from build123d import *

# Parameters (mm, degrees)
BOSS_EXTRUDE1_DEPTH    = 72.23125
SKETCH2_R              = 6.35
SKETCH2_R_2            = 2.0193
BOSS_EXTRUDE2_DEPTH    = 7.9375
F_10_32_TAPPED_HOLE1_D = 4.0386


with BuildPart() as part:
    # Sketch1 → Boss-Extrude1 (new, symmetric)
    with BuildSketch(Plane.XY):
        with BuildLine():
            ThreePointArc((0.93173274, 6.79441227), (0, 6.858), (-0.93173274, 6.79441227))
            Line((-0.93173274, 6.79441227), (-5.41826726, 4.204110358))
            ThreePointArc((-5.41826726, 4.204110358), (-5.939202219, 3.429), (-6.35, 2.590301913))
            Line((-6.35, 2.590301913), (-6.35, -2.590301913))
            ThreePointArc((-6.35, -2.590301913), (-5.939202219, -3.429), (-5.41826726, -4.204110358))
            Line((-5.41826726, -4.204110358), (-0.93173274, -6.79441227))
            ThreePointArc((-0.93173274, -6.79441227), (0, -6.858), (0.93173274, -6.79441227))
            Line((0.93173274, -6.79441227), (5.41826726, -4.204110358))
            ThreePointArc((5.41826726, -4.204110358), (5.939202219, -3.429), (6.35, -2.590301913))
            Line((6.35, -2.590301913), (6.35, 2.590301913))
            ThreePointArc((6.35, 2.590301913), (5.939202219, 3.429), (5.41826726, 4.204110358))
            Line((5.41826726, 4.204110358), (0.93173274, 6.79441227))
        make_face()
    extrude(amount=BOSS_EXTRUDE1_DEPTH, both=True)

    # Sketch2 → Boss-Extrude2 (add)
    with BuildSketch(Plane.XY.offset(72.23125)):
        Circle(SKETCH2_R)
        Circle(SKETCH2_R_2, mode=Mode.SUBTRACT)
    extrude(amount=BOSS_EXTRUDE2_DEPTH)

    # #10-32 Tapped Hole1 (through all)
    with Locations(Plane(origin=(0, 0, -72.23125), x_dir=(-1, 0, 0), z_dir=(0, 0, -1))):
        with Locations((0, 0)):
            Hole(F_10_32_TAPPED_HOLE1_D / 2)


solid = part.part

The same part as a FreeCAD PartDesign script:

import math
import FreeCAD as App
import Part
import Sketcher
Q = App.Units.Quantity

doc = App.newDocument("Part")
body = doc.addObject("PartDesign::Body", "Body")

sketch1 = doc.addObject("Sketcher::SketchObject", "Sketch")
body.addObject(sketch1)
sketch1.AttachmentSupport = (doc.XY_Plane, [""])
sketch1.MapMode = "FlatFace"
sketch1.addGeometry([
    Part.ArcOfCircle(Part.Circle(App.Vector(0, 0, 0), App.Vector(0, 0, 1), 6.9), math.radians(82.19), math.radians(97.81)),
    Part.LineSegment(App.Vector(-0.9, 6.8, 0), App.Vector(-5.4, 4.2, 0)),
    Part.ArcOfCircle(Part.Circle(App.Vector(0, 0, 0), App.Vector(0, 0, 1), 6.9), math.radians(142.19), math.radians(157.81)),
    Part.LineSegment(App.Vector(-6.3, 2.6, 0), App.Vector(-6.3, -2.6, 0)),
    Part.ArcOfCircle(Part.Circle(App.Vector(0, 0, 0), App.Vector(0, 0, 1), 6.9), math.radians(-157.81), math.radians(-142.19)),
    Part.LineSegment(App.Vector(-5.4, -4.2, 0), App.Vector(-0.9, -6.8, 0)),
    Part.ArcOfCircle(Part.Circle(App.Vector(0, 0, 0), App.Vector(0, 0, 1), 6.9), math.radians(-97.81), math.radians(-82.19)),
    Part.LineSegment(App.Vector(0.9, -6.8, 0), App.Vector(5.4, -4.2, 0)),
    Part.ArcOfCircle(Part.Circle(App.Vector(0, 0, 0), App.Vector(0, 0, 1), 6.9), math.radians(-37.81), math.radians(-22.19)),
    Part.LineSegment(App.Vector(6.3, -2.6, 0), App.Vector(6.3, 2.6, 0)),
    Part.ArcOfCircle(Part.Circle(App.Vector(0, 0, 0), App.Vector(0, 0, 1), 6.9), math.radians(22.19), math.radians(37.81)),
    Part.LineSegment(App.Vector(5.4, 4.2, 0), App.Vector(0.9, 6.8, 0)),
], False)
sketch1.addConstraint([
    Sketcher.Constraint("Coincident", 0, 2, 1, 1),
    Sketcher.Constraint("Coincident", 1, 2, 2, 1),
    Sketcher.Constraint("Coincident", 2, 2, 3, 1),
    Sketcher.Constraint("Coincident", 3, 2, 4, 1),
    Sketcher.Constraint("Coincident", 4, 2, 5, 1),
    Sketcher.Constraint("Coincident", 5, 2, 6, 1),
    Sketcher.Constraint("Coincident", 6, 2, 7, 1),
    Sketcher.Constraint("Coincident", 7, 2, 8, 1),
    Sketcher.Constraint("Coincident", 8, 2, 9, 1),
    Sketcher.Constraint("Coincident", 9, 2, 10, 1),
    Sketcher.Constraint("Coincident", 10, 2, 11, 1),
    Sketcher.Constraint("Coincident", 11, 2, 0, 1),
    Sketcher.Constraint("Vertical", 3),
    Sketcher.Constraint("Vertical", 9),
    Sketcher.Constraint("Coincident", 0, 3, -1, 1),
    Sketcher.Constraint("Coincident", 2, 3, -1, 1),
    Sketcher.Constraint("Coincident", 4, 3, -1, 1),
    Sketcher.Constraint("Coincident", 6, 3, -1, 1),
    Sketcher.Constraint("Coincident", 8, 3, -1, 1),
    Sketcher.Constraint("Coincident", 10, 3, -1, 1),
    Sketcher.Constraint("Equal", 0, 2),
    Sketcher.Constraint("Equal", 2, 4),
    Sketcher.Constraint("Equal", 4, 6),
    Sketcher.Constraint("Equal", 6, 8),
    Sketcher.Constraint("Equal", 8, 10),
    Sketcher.Constraint("Parallel", 1, 7),
    Sketcher.Constraint("Parallel", 5, 11),
    Sketcher.Constraint("Horizontal", 5, 2, 6, 2),
    Sketcher.Constraint("Horizontal", 4, 2, 7, 2),
    Sketcher.Constraint("Horizontal", 3, 2, 8, 2),
    Sketcher.Constraint("Horizontal", 1, 2, 10, 2),
    Sketcher.Constraint("Vertical", 1, 2, 4, 2),
    Sketcher.Constraint("Radius", 0, Q("0.27 in")),
    Sketcher.Constraint("Angle", 1, Q("-150 deg")),
    Sketcher.Constraint("DistanceX", 2, 2, -1, 1, Q("0.25 in")),
    Sketcher.Constraint("DistanceX", 4, 2, 6, 2, Q("0.25 in")),
])
pad1 = doc.addObject("PartDesign::Pad", "Pad")
body.addObject(pad1)
pad1.Profile = sketch1
pad1.Length = Q("5.6875 in")
pad1.Midplane = True

sketch2 = doc.addObject("Sketcher::SketchObject", "Sketch001")
body.addObject(sketch2)
sketch2.AttachmentSupport = (doc.XY_Plane, [""])
sketch2.MapMode = "FlatFace"
sketch2.AttachmentOffset = App.Placement(App.Vector(0, 0, 2.84375 * 25.4), App.Rotation())
sketch2.addGeometry([
    Part.Circle(App.Vector(0, 0, 0), App.Vector(0, 0, 1), 6.3),
    Part.Circle(App.Vector(0, 0, 0), App.Vector(0, 0, 1), 2),
], False)
sketch2.addConstraint([
    Sketcher.Constraint("Coincident", 0, 3, -1, 1),
    Sketcher.Constraint("Coincident", 1, 3, -1, 1),
    Sketcher.Constraint("Diameter", 0, Q("0.5 in")),
    Sketcher.Constraint("Diameter", 1, Q("0.159 in")),
])
pad2 = doc.addObject("PartDesign::Pad", "Pad001")
body.addObject(pad2)
pad2.Profile = sketch2
pad2.Length = Q("0.3125 in")

sketch3 = doc.addObject("Sketcher::SketchObject", "Sketch002")
body.addObject(sketch3)
sketch3.AttachmentSupport = (doc.XY_Plane, [""])
sketch3.MapMode = "FlatFace"
sketch3.AttachmentOffset = App.Placement(App.Vector(0, 0, -2.84375 * 25.4), App.Rotation())
sketch3.addGeometry(Part.Circle(App.Vector(0, 0, 0), App.Vector(0, 0, 1), 2), False)
sketch3.addConstraint([
    Sketcher.Constraint("Coincident", 0, 3, -1, 1),
    Sketcher.Constraint("Diameter", 0, Q("0.159 in")),
])
doc.recompute()
hole = doc.addObject("PartDesign::Hole", "Hole")
body.addObject(hole)
hole.Profile = sketch3
hole.ThreadType = "None"
hole.Diameter = Q("0.159 in")
hole.DepthType = "ThroughAll"
hole.Reversed = True

doc.recompute()
